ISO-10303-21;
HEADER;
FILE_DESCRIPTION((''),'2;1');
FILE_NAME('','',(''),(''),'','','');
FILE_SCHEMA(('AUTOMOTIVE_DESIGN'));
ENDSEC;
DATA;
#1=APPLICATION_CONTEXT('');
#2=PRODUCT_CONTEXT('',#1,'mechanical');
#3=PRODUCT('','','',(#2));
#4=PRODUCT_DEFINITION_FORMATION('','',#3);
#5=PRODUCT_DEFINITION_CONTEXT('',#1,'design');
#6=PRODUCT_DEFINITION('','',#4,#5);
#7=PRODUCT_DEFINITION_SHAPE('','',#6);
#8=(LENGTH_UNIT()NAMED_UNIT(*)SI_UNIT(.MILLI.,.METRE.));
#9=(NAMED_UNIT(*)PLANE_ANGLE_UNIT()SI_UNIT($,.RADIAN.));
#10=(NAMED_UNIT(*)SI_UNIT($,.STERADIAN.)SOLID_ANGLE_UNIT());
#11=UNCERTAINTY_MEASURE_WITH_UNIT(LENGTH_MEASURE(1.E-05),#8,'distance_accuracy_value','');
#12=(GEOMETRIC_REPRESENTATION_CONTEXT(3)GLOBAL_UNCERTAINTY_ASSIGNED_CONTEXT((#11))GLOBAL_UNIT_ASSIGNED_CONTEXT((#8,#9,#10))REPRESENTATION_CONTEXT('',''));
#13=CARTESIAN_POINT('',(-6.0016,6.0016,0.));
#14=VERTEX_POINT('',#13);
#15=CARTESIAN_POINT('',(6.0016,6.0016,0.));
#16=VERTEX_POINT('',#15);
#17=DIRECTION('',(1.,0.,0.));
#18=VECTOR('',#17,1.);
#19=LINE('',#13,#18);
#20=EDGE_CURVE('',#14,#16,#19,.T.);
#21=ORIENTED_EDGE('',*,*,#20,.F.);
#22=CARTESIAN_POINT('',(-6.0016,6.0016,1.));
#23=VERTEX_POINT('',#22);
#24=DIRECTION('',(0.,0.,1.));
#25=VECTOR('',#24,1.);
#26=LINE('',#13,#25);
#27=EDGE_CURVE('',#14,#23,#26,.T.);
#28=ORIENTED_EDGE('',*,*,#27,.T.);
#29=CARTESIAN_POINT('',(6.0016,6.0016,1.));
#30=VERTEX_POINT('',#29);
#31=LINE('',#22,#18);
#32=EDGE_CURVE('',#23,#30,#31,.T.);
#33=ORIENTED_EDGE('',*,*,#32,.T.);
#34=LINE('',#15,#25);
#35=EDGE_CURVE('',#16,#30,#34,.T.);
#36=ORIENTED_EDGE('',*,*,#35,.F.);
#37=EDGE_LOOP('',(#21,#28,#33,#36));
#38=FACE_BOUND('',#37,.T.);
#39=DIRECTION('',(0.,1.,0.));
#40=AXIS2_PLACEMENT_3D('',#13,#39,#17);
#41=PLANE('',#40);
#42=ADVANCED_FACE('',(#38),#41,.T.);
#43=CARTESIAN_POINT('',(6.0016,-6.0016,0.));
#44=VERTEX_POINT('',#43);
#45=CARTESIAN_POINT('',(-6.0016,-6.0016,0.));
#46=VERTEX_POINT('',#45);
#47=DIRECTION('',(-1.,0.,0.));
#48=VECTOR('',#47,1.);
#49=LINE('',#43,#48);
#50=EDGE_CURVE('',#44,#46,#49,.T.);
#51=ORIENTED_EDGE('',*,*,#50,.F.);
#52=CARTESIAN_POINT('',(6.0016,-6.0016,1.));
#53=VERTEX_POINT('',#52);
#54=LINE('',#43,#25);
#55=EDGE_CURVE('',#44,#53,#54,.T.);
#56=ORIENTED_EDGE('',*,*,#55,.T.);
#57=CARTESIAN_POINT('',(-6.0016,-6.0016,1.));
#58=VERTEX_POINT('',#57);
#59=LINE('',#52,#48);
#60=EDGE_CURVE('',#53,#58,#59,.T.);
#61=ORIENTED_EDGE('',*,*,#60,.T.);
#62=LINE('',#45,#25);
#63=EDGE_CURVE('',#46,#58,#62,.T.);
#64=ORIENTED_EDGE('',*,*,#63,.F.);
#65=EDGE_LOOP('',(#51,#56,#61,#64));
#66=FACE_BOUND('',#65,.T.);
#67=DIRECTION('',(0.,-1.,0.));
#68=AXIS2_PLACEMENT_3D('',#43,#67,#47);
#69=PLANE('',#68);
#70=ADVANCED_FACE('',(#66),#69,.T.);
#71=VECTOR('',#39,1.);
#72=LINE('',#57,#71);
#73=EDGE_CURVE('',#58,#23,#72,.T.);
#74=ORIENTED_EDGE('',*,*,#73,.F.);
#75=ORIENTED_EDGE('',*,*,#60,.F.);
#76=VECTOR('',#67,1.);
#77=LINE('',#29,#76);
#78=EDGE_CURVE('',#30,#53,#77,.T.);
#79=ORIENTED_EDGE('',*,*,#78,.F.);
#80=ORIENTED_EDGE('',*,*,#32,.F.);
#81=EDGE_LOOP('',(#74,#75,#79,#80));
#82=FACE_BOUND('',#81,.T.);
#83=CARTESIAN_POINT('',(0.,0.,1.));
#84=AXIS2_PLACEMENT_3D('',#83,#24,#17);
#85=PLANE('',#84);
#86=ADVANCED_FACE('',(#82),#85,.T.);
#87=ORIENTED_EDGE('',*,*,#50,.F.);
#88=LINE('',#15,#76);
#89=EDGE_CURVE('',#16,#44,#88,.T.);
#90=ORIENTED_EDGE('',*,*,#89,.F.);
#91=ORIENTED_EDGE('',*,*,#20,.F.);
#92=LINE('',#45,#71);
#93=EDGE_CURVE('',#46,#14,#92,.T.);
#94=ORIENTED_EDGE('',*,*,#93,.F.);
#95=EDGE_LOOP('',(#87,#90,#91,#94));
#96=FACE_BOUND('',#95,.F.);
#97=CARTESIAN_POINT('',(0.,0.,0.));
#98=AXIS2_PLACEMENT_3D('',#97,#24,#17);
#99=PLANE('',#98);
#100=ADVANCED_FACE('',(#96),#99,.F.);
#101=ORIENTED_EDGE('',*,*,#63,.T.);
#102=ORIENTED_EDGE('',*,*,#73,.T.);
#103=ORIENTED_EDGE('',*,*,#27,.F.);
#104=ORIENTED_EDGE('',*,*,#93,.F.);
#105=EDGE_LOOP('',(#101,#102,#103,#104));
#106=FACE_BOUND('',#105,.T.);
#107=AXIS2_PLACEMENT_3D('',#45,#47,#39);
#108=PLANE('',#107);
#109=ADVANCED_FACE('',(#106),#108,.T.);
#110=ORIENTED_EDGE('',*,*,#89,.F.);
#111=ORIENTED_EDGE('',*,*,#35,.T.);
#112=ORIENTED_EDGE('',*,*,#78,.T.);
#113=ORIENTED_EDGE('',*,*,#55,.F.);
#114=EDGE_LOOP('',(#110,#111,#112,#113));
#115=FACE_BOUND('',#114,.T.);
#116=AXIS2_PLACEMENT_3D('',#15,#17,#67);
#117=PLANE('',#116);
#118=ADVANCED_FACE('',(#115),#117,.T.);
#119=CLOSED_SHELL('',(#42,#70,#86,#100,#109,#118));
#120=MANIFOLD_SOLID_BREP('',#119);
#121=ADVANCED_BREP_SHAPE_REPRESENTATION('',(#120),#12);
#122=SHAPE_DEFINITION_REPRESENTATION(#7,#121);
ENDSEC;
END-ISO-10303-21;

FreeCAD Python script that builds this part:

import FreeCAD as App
import Part
import Sketcher
from FreeCAD import Vector


def add_polygon(sketch, points):
    """Adds a closed chain of lines whose ends are joined by coincident constraints."""
    first, n = sketch.GeometryCount, len(points)
    for a, b in zip(points, points[1:] + points[:1]):
        sketch.addGeometry(Part.LineSegment(App.Vector(*a, 0), App.Vector(*b, 0)), False)
    for i in range(n):
        sketch.addConstraint(Sketcher.Constraint("Coincident", first + i, 2, first + (i + 1) % n, 1))

doc = App.newDocument("Part")
body = doc.addObject("PartDesign::Body", "Body")

# Sketch on XY plane
sketch1 = body.newObject("Sketcher::SketchObject", "Sketch")
sketch1.AttachmentSupport = (doc.getObject("XY_Plane"), [""])
sketch1.MapMode = "FlatFace"
add_polygon(sketch1, [(6, 6), (-6, 6), (-6, -6), (6, -6)])  # lines 0-3
sketch1.addConstraint(Sketcher.Constraint("Horizontal", 0))
sketch1.addConstraint(Sketcher.Constraint("Vertical", 1))
sketch1.addConstraint(Sketcher.Constraint("Horizontal", 2))
sketch1.addConstraint(Sketcher.Constraint("Vertical", 3))
sketch1.addConstraint(Sketcher.Constraint("Symmetric", 0, 2, 2, 2, -1, 1))
sketch1.addConstraint(Sketcher.Constraint("Equal", 2, 1))
sketch1.addConstraint(Sketcher.Constraint("DistanceX", 0, 2, 0, 1, 12.0032))
pad1 = body.newObject("PartDesign::Pad", "Pad")
pad1.Profile = sketch1
pad1.Length = 1

doc.recompute()
